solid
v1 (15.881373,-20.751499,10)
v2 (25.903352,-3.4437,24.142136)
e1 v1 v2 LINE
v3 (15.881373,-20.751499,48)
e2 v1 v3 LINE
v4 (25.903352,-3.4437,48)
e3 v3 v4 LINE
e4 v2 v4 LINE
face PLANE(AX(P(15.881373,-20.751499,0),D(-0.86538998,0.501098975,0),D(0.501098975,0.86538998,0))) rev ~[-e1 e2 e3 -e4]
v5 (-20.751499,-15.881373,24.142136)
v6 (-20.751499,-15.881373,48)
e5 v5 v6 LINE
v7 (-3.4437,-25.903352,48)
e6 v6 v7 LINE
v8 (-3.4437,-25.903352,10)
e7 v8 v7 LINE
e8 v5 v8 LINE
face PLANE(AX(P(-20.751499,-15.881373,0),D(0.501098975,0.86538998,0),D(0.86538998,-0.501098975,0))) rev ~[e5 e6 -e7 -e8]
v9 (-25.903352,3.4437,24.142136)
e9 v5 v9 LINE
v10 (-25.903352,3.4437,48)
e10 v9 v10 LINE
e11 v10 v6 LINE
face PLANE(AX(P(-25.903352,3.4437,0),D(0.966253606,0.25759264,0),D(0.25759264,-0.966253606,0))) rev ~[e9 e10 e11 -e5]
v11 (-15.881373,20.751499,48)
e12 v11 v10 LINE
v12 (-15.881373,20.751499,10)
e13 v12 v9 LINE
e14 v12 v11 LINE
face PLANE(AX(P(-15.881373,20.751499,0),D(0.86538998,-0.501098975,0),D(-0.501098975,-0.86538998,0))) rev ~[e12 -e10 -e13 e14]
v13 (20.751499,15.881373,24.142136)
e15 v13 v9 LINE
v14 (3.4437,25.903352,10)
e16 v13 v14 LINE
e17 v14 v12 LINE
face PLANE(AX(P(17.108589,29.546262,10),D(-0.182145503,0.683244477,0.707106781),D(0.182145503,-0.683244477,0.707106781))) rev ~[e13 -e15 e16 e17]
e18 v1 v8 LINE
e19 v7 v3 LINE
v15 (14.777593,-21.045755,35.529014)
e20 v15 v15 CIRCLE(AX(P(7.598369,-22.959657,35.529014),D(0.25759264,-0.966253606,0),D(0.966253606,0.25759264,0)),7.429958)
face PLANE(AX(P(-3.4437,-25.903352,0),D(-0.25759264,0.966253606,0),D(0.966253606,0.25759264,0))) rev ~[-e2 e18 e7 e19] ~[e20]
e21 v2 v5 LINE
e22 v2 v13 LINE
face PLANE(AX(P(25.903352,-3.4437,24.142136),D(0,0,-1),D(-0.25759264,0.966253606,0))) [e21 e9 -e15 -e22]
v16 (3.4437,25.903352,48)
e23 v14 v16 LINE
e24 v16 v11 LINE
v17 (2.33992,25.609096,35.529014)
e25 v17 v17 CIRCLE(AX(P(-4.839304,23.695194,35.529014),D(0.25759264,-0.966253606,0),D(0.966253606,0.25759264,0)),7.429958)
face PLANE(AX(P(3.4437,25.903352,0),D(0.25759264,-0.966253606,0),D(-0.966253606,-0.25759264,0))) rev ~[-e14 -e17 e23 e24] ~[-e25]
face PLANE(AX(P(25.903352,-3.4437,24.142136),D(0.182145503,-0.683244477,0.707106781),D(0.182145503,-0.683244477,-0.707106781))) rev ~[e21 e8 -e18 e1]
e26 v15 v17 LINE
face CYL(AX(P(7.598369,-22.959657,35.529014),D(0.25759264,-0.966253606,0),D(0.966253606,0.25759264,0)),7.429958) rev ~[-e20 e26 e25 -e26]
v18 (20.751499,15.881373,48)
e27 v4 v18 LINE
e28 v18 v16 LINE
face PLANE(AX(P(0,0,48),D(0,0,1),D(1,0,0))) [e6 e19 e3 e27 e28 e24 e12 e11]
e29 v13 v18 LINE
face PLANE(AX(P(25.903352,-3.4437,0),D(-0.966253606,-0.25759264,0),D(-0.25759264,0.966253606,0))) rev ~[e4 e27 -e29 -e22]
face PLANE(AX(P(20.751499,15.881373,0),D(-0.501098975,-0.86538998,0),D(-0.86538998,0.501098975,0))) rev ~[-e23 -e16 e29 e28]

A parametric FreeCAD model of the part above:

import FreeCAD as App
import Part
import Sketcher


def add_polygon(sketch, points):
    """Adds a closed chain of lines whose ends are joined by coincident constraints."""
    first, n = sketch.GeometryCount, len(points)
    for a, b in zip(points, points[1:] + points[:1]):
        sketch.addGeometry(Part.LineSegment(App.Vector(*a, 0), App.Vector(*b, 0)), False)
    for i in range(n):
        sketch.addConstraint(Sketcher.Constraint("Coincident", first + i, 2, first + (i + 1) % n, 1))

doc = App.newDocument("Part")
body = doc.addObject("PartDesign::Body", "Body")

# Sketch on XY plane
sketch1 = body.newObject("Sketcher::SketchObject", "Sketch")
sketch1.AttachmentSupport = (doc.getObject("XY_Plane"), [""])
sketch1.MapMode = "FlatFace"
add_polygon(sketch1, [(-16, 21), (-26, 3), (-21, -16), (-3, -26), (16, -21), (26, -3), (21, 16), (3, 26)])  # lines 0-7
sketch1.addConstraint([
    Sketcher.Constraint("Symmetric", 0, 2, 4, 2, -1, 1),
    Sketcher.Constraint("Symmetric", 1, 2, 5, 2, -1, 1),
    Sketcher.Constraint("Symmetric", 2, 2, 6, 2, -1, 1),
    Sketcher.Constraint("Symmetric", 3, 2, 7, 2, -1, 1),
    Sketcher.Constraint("Perpendicular", 0, 2),
    Sketcher.Constraint("Perpendicular", 1, 3),
    Sketcher.Constraint("Equal", 0, 1),
    Sketcher.Constraint("Equal", 1, 2),
    Sketcher.Constraint("Equal", 2, 3),
    Sketcher.Constraint("Distance", 0, 20.0),
    Sketcher.Constraint("DistanceX", 1, 2, 5, 2, 41.502998),
    Sketcher.Constraint("DistanceY", -1, 1, 0, 2, 3.4437),
])
pad1 = body.newObject("PartDesign::Pad", "Pad")
pad1.Profile = sketch1
pad1.Length = 48

# Sketch on an angled plane
sketch2 = body.newObject("Sketcher::SketchObject", "Sketch001")
sketch2.Placement = App.Placement(App.Vector(23.327426, 6.218836, 0), App.Rotation(App.Vector(-0.25759264, 0.966253606, 0), App.Vector(0, 0, 0.999999999), App.Vector(0.966253606, 0.25759264, 0), "ZXY"))
add_polygon(sketch2, [(-10, 24), (-24, 10), (-24, -10), (-10, -24), (10, -24), (24, -10), (24, 10), (10, 24)])  # lines 0-7
sketch2.addConstraint([
    Sketcher.Constraint("Vertical", 1),
    Sketcher.Constraint("Horizontal", 3),
    Sketcher.Constraint("Vertical", 5),
    Sketcher.Constraint("Horizontal", 7),
    Sketcher.Constraint("Symmetric", 0, 2, 4, 2, -1, 1),
    Sketcher.Constraint("Symmetric", 2, 2, 6, 2, -1, 1),
    Sketcher.Constraint("Perpendicular", 0, 2),
    Sketcher.Constraint("Perpendicular", 2, 4),
    Sketcher.Constraint("Perpendicular", 4, 6),
    Sketcher.Constraint("Horizontal", 1, 2, 4, 2),
    Sketcher.Constraint("Vertical", 3, 2, 6, 2),
    Sketcher.Constraint("Equal", 7, 1),
    Sketcher.Constraint("DistanceX", 3, 1, 3, 2, 20.0),
    Sketcher.Constraint("Distance", 0, 20.0),
])
pocket1 = body.newObject("PartDesign::Pocket", "Pocket")
pocket1.Profile = sketch2
pocket1.Type = "ThroughAll"

# Sketch on an angled plane
sketch3 = body.newObject("Sketcher::SketchObject", "Sketch002")
sketch3.Placement = App.Placement(App.Vector(6.218836, -23.327426, 0), App.Rotation(App.Vector(0.966253606, 0.25759264, 0), App.Vector(0, 0, 0.999999999), App.Vector(0.25759264, -0.966253606, 0), "ZXY"))
sketch3.addGeometry(Part.Circle(App.Vector(1, 36, 0), App.Vector(0, 0, 1), 7), False)
sketch3.addConstraint([
    Sketcher.Constraint("Diameter", 0, 14.859917),
    Sketcher.Constraint("DistanceX", -1, 1, 0, 3, 1.427712),
    Sketcher.Constraint("DistanceY", -1, 1, 0, 3, 35.529014),
])
pocket2 = body.newObject("PartDesign::Pocket", "Pocket001")
pocket2.Profile = sketch3
pocket2.Type = "ThroughAll"

doc.recompute()
